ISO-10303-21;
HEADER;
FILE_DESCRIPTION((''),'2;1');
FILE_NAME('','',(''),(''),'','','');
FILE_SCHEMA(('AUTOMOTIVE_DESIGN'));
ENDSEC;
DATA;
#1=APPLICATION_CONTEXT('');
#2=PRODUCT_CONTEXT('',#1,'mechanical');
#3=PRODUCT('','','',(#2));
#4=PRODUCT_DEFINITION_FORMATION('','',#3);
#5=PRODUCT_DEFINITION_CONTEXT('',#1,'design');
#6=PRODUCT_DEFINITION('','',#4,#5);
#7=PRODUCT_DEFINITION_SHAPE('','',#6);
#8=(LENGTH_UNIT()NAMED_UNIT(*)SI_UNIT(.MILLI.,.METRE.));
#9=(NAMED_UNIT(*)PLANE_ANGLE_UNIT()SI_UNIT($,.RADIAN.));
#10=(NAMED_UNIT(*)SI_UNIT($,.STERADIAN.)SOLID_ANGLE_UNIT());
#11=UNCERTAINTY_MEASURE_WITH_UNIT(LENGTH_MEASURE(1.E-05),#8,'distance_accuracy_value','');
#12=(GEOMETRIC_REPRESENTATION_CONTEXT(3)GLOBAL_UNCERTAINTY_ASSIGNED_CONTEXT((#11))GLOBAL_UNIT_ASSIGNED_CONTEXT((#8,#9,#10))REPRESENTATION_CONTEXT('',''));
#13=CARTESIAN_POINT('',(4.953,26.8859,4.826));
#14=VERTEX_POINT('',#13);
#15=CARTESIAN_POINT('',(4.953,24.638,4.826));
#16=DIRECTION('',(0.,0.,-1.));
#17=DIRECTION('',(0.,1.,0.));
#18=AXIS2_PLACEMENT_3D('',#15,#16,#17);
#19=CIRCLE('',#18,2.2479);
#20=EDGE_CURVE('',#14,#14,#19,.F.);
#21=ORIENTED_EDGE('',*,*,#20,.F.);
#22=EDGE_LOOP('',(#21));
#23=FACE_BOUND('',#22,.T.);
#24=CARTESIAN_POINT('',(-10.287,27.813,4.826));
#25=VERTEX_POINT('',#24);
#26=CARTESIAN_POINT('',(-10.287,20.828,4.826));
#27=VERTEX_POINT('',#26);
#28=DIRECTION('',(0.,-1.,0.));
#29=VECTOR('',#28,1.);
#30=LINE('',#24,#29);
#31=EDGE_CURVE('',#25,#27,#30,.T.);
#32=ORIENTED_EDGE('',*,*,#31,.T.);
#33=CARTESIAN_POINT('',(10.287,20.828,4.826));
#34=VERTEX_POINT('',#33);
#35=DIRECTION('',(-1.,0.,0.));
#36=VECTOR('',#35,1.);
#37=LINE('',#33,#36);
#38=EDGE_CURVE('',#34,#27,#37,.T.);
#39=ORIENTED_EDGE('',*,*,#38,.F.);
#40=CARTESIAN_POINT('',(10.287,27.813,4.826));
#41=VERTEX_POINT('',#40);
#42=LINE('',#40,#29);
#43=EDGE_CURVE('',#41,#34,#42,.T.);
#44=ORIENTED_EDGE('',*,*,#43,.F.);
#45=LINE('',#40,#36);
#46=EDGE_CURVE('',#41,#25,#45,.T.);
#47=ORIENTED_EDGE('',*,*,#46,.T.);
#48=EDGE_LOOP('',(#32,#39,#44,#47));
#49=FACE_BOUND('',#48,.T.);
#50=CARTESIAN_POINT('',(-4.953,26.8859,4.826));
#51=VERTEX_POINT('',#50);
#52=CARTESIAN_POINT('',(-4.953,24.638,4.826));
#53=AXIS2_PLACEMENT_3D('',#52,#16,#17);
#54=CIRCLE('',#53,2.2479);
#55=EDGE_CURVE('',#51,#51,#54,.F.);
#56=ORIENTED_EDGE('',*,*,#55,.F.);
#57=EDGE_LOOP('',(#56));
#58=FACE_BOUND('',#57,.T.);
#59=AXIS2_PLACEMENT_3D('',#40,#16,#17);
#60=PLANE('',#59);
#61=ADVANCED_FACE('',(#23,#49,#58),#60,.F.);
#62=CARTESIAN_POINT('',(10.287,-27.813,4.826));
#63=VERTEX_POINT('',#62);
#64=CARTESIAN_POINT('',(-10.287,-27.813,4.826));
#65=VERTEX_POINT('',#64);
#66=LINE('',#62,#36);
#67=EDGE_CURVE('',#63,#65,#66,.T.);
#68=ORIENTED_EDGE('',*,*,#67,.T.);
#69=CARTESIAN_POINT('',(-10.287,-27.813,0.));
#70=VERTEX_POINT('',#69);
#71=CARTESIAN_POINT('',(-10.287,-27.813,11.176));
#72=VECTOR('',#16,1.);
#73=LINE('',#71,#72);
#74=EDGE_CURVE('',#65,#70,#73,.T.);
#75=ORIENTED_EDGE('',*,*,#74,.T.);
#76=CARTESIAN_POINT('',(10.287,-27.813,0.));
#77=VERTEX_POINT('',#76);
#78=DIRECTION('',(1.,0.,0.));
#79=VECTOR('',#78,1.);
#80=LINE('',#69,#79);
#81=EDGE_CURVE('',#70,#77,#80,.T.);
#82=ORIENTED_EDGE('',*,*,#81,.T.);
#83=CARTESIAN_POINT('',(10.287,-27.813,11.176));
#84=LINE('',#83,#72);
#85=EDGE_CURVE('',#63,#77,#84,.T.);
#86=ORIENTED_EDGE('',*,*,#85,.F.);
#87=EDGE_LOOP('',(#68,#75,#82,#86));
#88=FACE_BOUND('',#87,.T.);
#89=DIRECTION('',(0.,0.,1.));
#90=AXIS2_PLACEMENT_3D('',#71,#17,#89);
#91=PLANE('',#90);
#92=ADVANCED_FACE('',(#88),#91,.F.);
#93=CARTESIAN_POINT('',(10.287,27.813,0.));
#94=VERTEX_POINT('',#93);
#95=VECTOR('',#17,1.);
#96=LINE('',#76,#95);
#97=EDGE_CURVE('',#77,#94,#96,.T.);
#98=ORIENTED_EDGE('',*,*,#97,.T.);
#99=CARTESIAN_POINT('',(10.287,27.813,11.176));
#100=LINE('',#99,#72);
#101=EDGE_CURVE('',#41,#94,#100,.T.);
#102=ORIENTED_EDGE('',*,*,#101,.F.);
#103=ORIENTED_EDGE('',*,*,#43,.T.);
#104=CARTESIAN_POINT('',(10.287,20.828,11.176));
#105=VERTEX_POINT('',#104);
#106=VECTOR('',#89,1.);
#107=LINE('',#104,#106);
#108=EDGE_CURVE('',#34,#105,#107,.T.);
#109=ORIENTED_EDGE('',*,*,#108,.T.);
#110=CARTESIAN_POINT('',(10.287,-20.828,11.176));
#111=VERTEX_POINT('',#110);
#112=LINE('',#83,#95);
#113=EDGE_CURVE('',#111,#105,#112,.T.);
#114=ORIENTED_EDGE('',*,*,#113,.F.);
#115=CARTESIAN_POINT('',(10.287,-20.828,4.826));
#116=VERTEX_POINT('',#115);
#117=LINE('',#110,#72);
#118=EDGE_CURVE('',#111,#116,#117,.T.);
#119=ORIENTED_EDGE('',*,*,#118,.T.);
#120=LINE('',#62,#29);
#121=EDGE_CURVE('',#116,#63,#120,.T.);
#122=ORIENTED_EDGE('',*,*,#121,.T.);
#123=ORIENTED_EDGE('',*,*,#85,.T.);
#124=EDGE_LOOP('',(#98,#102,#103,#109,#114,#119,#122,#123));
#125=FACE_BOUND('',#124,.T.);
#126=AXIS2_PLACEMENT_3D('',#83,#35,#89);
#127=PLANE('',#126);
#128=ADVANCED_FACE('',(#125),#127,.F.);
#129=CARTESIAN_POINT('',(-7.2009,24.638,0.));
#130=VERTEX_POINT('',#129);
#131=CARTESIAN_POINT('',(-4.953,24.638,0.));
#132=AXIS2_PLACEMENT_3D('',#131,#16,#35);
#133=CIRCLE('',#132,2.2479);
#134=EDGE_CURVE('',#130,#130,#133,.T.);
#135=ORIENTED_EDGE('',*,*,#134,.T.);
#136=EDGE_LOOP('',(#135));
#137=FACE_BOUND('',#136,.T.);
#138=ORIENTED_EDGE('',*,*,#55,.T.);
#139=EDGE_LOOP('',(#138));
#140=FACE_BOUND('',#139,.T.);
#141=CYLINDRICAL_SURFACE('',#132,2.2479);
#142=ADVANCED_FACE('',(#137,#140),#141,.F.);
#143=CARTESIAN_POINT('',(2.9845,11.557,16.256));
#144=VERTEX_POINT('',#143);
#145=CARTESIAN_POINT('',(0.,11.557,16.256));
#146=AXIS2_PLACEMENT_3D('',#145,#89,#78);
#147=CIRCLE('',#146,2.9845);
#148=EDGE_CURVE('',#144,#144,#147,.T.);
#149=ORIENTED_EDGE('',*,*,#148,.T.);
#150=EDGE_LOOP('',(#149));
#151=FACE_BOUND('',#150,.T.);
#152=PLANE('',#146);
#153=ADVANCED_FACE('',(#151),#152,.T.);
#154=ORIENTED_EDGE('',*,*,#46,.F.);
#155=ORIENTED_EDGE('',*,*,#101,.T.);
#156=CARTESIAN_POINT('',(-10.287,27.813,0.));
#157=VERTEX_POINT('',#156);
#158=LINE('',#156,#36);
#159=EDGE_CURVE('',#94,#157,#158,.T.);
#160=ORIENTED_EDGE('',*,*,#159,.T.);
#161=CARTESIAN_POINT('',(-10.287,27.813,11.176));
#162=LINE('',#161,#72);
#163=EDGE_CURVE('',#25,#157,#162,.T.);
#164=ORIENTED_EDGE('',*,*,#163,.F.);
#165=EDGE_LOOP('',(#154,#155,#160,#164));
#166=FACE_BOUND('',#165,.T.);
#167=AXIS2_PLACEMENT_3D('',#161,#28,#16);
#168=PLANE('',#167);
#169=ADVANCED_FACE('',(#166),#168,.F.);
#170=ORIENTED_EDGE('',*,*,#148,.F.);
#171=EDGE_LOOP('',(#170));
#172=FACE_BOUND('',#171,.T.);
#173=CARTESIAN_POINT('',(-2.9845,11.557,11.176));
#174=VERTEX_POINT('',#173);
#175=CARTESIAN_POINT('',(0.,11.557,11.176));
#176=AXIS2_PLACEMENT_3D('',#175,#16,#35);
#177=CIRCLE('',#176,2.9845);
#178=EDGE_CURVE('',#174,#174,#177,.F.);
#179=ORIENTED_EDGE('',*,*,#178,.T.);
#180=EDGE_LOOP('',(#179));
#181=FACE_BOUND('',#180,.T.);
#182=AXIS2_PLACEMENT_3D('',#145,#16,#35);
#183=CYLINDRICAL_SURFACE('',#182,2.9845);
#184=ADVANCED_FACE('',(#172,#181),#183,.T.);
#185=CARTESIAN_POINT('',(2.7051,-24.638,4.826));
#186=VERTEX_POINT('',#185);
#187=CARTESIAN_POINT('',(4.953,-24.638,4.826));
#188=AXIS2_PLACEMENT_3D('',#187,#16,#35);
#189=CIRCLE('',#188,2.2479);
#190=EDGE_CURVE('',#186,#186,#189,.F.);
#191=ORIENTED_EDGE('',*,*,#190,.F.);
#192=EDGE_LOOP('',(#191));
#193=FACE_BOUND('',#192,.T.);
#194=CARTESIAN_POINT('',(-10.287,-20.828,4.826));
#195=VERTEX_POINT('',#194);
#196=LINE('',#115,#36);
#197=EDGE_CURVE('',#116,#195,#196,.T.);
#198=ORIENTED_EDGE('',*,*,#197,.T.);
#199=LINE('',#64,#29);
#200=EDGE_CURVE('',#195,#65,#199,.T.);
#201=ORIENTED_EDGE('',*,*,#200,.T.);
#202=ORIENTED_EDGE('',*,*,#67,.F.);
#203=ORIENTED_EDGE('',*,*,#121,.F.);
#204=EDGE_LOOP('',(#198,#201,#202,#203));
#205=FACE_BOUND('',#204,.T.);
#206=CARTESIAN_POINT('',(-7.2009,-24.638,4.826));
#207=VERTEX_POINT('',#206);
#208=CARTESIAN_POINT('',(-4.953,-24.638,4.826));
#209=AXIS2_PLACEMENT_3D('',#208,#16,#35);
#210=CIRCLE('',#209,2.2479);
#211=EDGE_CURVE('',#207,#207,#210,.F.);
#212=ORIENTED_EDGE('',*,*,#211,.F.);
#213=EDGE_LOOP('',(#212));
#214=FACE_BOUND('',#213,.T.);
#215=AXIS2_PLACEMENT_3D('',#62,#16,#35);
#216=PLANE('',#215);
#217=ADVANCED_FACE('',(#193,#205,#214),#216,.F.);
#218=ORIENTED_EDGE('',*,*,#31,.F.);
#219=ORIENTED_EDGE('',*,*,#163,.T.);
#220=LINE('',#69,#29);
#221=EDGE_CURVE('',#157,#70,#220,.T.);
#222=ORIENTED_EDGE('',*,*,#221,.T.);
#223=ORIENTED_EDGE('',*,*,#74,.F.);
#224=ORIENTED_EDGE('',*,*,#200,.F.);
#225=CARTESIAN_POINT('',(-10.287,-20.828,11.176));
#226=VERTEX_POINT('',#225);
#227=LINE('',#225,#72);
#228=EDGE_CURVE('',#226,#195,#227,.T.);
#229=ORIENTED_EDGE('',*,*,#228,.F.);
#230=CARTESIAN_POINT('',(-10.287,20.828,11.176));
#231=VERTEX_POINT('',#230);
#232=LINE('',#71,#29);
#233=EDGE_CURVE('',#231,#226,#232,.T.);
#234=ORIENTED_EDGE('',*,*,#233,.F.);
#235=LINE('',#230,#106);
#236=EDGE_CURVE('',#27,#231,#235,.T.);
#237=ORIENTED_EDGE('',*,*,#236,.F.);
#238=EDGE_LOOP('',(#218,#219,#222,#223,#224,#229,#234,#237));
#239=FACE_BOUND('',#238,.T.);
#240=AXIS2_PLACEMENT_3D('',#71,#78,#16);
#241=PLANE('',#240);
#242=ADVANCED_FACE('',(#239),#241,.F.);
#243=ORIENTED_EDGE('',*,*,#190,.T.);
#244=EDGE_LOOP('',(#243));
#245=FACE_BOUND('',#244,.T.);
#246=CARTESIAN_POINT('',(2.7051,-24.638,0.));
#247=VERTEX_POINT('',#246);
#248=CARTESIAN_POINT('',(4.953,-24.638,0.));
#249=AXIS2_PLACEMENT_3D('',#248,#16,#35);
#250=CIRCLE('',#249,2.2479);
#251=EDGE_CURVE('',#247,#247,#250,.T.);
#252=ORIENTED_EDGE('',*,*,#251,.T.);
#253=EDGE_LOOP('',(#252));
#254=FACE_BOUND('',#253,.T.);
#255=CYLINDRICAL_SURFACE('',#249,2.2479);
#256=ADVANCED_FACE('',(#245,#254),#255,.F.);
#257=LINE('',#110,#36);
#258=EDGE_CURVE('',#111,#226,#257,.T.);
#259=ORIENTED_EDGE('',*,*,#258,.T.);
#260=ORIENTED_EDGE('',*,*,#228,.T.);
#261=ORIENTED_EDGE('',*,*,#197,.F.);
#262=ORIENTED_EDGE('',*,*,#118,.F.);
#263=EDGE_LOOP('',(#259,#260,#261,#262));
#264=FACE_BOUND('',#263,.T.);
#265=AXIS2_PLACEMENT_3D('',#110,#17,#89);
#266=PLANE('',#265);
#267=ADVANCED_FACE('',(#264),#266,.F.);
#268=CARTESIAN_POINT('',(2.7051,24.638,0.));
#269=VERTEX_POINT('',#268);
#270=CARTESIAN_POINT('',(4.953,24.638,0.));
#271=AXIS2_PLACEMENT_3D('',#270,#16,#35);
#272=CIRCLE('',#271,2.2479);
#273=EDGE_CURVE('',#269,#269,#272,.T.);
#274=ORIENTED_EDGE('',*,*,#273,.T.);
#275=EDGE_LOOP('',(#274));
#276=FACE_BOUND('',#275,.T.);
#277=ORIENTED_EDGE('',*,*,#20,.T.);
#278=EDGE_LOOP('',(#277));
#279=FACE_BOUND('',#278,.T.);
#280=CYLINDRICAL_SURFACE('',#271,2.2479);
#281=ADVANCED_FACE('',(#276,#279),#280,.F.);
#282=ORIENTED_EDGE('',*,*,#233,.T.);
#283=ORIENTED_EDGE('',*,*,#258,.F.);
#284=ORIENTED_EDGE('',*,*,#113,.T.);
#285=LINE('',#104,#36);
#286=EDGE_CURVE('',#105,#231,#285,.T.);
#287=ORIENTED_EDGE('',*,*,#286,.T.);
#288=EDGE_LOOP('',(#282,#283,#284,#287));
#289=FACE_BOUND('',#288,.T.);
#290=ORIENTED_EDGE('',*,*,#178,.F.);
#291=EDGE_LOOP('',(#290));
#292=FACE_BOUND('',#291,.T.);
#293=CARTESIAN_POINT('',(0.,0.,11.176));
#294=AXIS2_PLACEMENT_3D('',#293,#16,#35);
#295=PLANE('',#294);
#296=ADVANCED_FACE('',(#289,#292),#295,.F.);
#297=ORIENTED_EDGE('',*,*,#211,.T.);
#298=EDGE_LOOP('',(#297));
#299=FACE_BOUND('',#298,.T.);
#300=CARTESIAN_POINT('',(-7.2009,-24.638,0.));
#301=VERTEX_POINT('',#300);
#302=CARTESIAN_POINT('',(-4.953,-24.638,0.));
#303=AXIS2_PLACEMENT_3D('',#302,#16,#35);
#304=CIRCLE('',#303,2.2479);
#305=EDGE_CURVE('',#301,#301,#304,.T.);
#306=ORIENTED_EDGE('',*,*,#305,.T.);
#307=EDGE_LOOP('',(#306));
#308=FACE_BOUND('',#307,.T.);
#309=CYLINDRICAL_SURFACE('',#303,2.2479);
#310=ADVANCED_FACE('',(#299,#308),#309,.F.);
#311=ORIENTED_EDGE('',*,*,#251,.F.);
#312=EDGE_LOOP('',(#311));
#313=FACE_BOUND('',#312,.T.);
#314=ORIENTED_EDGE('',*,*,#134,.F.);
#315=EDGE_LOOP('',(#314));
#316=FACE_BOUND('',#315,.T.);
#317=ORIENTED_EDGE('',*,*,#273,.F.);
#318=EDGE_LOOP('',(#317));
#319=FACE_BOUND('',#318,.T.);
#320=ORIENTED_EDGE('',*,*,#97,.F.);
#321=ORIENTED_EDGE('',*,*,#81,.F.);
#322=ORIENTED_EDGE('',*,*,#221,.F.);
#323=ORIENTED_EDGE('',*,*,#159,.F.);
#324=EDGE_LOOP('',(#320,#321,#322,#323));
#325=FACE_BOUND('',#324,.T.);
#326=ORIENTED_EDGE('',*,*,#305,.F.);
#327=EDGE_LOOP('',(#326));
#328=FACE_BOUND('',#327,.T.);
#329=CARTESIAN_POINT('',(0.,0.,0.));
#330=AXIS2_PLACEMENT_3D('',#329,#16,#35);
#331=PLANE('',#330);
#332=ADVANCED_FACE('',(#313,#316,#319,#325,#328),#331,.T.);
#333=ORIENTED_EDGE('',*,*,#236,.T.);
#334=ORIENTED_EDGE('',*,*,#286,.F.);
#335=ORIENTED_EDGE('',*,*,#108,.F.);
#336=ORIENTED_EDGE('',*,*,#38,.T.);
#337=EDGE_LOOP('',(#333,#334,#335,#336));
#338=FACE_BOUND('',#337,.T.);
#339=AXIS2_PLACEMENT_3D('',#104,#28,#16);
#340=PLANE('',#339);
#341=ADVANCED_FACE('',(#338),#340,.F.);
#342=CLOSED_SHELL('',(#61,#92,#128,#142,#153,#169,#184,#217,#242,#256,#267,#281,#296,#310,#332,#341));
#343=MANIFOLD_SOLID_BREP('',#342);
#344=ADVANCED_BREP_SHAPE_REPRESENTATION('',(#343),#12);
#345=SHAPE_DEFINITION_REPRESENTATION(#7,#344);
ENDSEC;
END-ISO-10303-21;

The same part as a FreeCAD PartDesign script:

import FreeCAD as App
import Part
import Sketcher
Q = App.Units.Quantity


def add_polygon(sketch, points):
    """Adds a closed chain of lines whose ends are joined by coincident constraints."""
    first, n = sketch.GeometryCount, len(points)
    for a, b in zip(points, points[1:] + points[:1]):
        sketch.addGeometry(Part.LineSegment(App.Vector(*a, 0), App.Vector(*b, 0)), False)
    for i in range(n):
        sketch.addConstraint(Sketcher.Constraint("Coincident", first + i, 2, first + (i + 1) % n, 1))

doc = App.newDocument("Part")
params = doc.addObject("Spreadsheet::Sheet", "Params")
for row, (alias, value) in enumerate([
    ("sketch1_width", "0.81 in"),
    ("sketch1_height", "2.19 in"),
    ("pad1_length", "0.44 in"),
    ("sketch2_diameter", "0.235 in"),
    ("pad2_length", "0.2 in"),
    ("sketch3_diameter", "0.177 in"),
    ("hole_diameter", "0.177 in"),
    ("sketch4_diameter", "0.177 in"),
    ("hole2_diameter", "0.177 in"),
    ("sketch5_height", "0.25 in"),
    ("sketch5_width", "0.275 in"),
], start=1):
    params.set(f"A{row}", alias)
    params.set(f"B{row}", "=" + value)
    params.setAlias(f"B{row}", alias)

body = doc.addObject("PartDesign::Body", "Body")

sketch1 = doc.addObject("Sketcher::SketchObject", "Sketch")
body.addObject(sketch1)
sketch1.AttachmentSupport = (doc.XY_Plane, [""])
sketch1.MapMode = "FlatFace"
add_polygon(sketch1, [(-10.287, 27.813), (-10.287, -27.813), (10.287, -27.813), (10.287, 27.813)])
sketch1.addConstraint([
    Sketcher.Constraint("Vertical", 0),
    Sketcher.Constraint("Horizontal", 1),
    Sketcher.Constraint("Vertical", 2),
    Sketcher.Constraint("Horizontal", 3),
    Sketcher.Constraint("Symmetric", 0, 2, 2, 2, -1, 1),
    Sketcher.Constraint("DistanceX", 1, 1, 1, 2, Q("0.81 in")),
    Sketcher.Constraint("DistanceY", 0, 2, 0, 1, Q("2.19 in")),
])
sketch1.setExpression("Constraints[9]", "Params.sketch1_width")
sketch1.setExpression("Constraints[10]", "Params.sketch1_height")
pad1 = doc.addObject("PartDesign::Pad", "Pad")
body.addObject(pad1)
pad1.Profile = sketch1
pad1.setExpression("Length", "Params.pad1_length")

sketch2 = doc.addObject("Sketcher::SketchObject", "Sketch001")
body.addObject(sketch2)
sketch2.AttachmentSupport = (doc.XY_Plane, [""])
sketch2.MapMode = "FlatFace"
sketch2.AttachmentOffset = App.Placement(App.Vector(0, 0, 0.44 * 25.4), App.Rotation())
sketch2.addGeometry(Part.Circle(App.Vector(0, 11.557, 0), App.Vector(0, 0, 1), 2.9845), False)
sketch2.addConstraint([
    Sketcher.Constraint("PointOnObject", 0, 3, -2),
    Sketcher.Constraint("Diameter", 0, Q("0.235 in")),
    Sketcher.Constraint("DistanceY", -1, 1, 0, 3, Q("0.455 in")),
])
sketch2.setExpression("Constraints[1]", "Params.sketch2_diameter")
pad2 = doc.addObject("PartDesign::Pad", "Pad001")
body.addObject(pad2)
pad2.Profile = sketch2
pad2.setExpression("Length", "Params.pad2_length")

sketch3 = doc.addObject("Sketcher::SketchObject", "Sketch002")
body.addObject(sketch3)
sketch3.AttachmentSupport = (doc.XY_Plane, [""])
sketch3.MapMode = "FlatFace"
sketch3.addGeometry(Part.Circle(App.Vector(-4.953, 24.638, 0), App.Vector(0, 0, 1), 2.2479), False)
sketch3.addConstraint([
    Sketcher.Constraint("Diameter", 0, Q("0.177 in")),
    Sketcher.Constraint("DistanceY", -1, 1, 0, 3, Q("0.97 in")),
    Sketcher.Constraint("DistanceX", 0, 3, -1, 1, Q("0.195 in")),
])
sketch3.setExpression("Constraints[0]", "Params.sketch3_diameter")
doc.recompute()
hole = doc.addObject("PartDesign::Hole", "Hole")
body.addObject(hole)
hole.Profile = sketch3
hole.ThreadType = "None"
hole.setExpression("Diameter", "Params.hole_diameter")
hole.DepthType = "ThroughAll"
hole.Reversed = True
doc.recompute()

mirrored = doc.addObject("PartDesign::Mirrored", "Mirrored")
body.addObject(mirrored)
mirrored.Originals = [hole]
mirrored.MirrorPlane = (doc.YZ_Plane, [""])
body.Tip = mirrored
doc.recompute()

mirrored2 = doc.addObject("PartDesign::Mirrored", "Mirrored001")
body.addObject(mirrored2)
mirrored2.Originals = [hole]
mirrored2.MirrorPlane = (doc.XZ_Plane, [""])
body.Tip = mirrored2

sketch4 = doc.addObject("Sketcher::SketchObject", "Sketch003")
body.addObject(sketch4)
sketch4.AttachmentSupport = (doc.XY_Plane, [""])
sketch4.MapMode = "FlatFace"
sketch4.addGeometry(Part.Circle(App.Vector(4.953, -24.638, 0), App.Vector(0, 0, 1), 2.2479), False)
sketch4.addConstraint([
    Sketcher.Constraint("Diameter", 0, Q("0.177 in")),
    Sketcher.Constraint("DistanceY", 0, 3, -1, 1, Q("0.97 in")),
    Sketcher.Constraint("DistanceX", -1, 1, 0, 3, Q("0.195 in")),
])
sketch4.setExpression("Constraints[0]", "Params.sketch4_diameter")
doc.recompute()
hole2 = doc.addObject("PartDesign::Hole", "Hole001")
body.addObject(hole2)
hole2.Profile = sketch4
hole2.ThreadType = "None"
hole2.setExpression("Diameter", "Params.hole2_diameter")
hole2.DepthType = "ThroughAll"
hole2.Reversed = True

sketch5 = doc.addObject("Sketcher::SketchObject", "Sketch004")
body.addObject(sketch5)
sketch5.AttachmentSupport = (doc.YZ_Plane, [""])
sketch5.MapMode = "FlatFace"
sketch5.AttachmentOffset = App.Placement(App.Vector(0, 0, -0.405 * 25.4), App.Rotation())
add_polygon(sketch5, [(-20.828, 4.826), (-27.813, 4.826), (-27.813, 11.176), (-20.828, 11.176)])
add_polygon(sketch5, [(27.813, 4.826), (20.828, 4.826), (20.828, 11.176), (27.813, 11.176)])
sketch5.addConstraint([
    Sketcher.Constraint("Horizontal", 0),
    Sketcher.Constraint("Vertical", 1),
    Sketcher.Constraint("Horizontal", 2),
    Sketcher.Constraint("Vertical", 3),
    Sketcher.Constraint("Horizontal", 4),
    Sketcher.Constraint("Vertical", 5),
    Sketcher.Constraint("Horizontal", 6),
    Sketcher.Constraint("Vertical", 7),
    Sketcher.Constraint("Symmetric", 3, 2, 4, 2, -2),
    Sketcher.Constraint("Symmetric", 1, 2, 6, 2, -2),
    Sketcher.Constraint("DistanceY", 1, 1, 1, 2, Q("0.25 in")),
    Sketcher.Constraint("DistanceX", 0, 2, 0, 1, Q("0.275 in")),
    Sketcher.Constraint("DistanceY", -1, 1, 0, 2, Q("0.19 in")),
    Sketcher.Constraint("DistanceX", 2, 2, -1, 1, Q("0.82 in")),
])
sketch5.setExpression("Constraints[18]", "Params.sketch5_height")
sketch5.setExpression("Constraints[19]", "Params.sketch5_width")
pocket1 = doc.addObject("PartDesign::Pocket", "Pocket")
body.addObject(pocket1)
pocket1.Profile = sketch5
pocket1.Type = "ThroughAll"
pocket1.Reversed = True

doc.recompute()
